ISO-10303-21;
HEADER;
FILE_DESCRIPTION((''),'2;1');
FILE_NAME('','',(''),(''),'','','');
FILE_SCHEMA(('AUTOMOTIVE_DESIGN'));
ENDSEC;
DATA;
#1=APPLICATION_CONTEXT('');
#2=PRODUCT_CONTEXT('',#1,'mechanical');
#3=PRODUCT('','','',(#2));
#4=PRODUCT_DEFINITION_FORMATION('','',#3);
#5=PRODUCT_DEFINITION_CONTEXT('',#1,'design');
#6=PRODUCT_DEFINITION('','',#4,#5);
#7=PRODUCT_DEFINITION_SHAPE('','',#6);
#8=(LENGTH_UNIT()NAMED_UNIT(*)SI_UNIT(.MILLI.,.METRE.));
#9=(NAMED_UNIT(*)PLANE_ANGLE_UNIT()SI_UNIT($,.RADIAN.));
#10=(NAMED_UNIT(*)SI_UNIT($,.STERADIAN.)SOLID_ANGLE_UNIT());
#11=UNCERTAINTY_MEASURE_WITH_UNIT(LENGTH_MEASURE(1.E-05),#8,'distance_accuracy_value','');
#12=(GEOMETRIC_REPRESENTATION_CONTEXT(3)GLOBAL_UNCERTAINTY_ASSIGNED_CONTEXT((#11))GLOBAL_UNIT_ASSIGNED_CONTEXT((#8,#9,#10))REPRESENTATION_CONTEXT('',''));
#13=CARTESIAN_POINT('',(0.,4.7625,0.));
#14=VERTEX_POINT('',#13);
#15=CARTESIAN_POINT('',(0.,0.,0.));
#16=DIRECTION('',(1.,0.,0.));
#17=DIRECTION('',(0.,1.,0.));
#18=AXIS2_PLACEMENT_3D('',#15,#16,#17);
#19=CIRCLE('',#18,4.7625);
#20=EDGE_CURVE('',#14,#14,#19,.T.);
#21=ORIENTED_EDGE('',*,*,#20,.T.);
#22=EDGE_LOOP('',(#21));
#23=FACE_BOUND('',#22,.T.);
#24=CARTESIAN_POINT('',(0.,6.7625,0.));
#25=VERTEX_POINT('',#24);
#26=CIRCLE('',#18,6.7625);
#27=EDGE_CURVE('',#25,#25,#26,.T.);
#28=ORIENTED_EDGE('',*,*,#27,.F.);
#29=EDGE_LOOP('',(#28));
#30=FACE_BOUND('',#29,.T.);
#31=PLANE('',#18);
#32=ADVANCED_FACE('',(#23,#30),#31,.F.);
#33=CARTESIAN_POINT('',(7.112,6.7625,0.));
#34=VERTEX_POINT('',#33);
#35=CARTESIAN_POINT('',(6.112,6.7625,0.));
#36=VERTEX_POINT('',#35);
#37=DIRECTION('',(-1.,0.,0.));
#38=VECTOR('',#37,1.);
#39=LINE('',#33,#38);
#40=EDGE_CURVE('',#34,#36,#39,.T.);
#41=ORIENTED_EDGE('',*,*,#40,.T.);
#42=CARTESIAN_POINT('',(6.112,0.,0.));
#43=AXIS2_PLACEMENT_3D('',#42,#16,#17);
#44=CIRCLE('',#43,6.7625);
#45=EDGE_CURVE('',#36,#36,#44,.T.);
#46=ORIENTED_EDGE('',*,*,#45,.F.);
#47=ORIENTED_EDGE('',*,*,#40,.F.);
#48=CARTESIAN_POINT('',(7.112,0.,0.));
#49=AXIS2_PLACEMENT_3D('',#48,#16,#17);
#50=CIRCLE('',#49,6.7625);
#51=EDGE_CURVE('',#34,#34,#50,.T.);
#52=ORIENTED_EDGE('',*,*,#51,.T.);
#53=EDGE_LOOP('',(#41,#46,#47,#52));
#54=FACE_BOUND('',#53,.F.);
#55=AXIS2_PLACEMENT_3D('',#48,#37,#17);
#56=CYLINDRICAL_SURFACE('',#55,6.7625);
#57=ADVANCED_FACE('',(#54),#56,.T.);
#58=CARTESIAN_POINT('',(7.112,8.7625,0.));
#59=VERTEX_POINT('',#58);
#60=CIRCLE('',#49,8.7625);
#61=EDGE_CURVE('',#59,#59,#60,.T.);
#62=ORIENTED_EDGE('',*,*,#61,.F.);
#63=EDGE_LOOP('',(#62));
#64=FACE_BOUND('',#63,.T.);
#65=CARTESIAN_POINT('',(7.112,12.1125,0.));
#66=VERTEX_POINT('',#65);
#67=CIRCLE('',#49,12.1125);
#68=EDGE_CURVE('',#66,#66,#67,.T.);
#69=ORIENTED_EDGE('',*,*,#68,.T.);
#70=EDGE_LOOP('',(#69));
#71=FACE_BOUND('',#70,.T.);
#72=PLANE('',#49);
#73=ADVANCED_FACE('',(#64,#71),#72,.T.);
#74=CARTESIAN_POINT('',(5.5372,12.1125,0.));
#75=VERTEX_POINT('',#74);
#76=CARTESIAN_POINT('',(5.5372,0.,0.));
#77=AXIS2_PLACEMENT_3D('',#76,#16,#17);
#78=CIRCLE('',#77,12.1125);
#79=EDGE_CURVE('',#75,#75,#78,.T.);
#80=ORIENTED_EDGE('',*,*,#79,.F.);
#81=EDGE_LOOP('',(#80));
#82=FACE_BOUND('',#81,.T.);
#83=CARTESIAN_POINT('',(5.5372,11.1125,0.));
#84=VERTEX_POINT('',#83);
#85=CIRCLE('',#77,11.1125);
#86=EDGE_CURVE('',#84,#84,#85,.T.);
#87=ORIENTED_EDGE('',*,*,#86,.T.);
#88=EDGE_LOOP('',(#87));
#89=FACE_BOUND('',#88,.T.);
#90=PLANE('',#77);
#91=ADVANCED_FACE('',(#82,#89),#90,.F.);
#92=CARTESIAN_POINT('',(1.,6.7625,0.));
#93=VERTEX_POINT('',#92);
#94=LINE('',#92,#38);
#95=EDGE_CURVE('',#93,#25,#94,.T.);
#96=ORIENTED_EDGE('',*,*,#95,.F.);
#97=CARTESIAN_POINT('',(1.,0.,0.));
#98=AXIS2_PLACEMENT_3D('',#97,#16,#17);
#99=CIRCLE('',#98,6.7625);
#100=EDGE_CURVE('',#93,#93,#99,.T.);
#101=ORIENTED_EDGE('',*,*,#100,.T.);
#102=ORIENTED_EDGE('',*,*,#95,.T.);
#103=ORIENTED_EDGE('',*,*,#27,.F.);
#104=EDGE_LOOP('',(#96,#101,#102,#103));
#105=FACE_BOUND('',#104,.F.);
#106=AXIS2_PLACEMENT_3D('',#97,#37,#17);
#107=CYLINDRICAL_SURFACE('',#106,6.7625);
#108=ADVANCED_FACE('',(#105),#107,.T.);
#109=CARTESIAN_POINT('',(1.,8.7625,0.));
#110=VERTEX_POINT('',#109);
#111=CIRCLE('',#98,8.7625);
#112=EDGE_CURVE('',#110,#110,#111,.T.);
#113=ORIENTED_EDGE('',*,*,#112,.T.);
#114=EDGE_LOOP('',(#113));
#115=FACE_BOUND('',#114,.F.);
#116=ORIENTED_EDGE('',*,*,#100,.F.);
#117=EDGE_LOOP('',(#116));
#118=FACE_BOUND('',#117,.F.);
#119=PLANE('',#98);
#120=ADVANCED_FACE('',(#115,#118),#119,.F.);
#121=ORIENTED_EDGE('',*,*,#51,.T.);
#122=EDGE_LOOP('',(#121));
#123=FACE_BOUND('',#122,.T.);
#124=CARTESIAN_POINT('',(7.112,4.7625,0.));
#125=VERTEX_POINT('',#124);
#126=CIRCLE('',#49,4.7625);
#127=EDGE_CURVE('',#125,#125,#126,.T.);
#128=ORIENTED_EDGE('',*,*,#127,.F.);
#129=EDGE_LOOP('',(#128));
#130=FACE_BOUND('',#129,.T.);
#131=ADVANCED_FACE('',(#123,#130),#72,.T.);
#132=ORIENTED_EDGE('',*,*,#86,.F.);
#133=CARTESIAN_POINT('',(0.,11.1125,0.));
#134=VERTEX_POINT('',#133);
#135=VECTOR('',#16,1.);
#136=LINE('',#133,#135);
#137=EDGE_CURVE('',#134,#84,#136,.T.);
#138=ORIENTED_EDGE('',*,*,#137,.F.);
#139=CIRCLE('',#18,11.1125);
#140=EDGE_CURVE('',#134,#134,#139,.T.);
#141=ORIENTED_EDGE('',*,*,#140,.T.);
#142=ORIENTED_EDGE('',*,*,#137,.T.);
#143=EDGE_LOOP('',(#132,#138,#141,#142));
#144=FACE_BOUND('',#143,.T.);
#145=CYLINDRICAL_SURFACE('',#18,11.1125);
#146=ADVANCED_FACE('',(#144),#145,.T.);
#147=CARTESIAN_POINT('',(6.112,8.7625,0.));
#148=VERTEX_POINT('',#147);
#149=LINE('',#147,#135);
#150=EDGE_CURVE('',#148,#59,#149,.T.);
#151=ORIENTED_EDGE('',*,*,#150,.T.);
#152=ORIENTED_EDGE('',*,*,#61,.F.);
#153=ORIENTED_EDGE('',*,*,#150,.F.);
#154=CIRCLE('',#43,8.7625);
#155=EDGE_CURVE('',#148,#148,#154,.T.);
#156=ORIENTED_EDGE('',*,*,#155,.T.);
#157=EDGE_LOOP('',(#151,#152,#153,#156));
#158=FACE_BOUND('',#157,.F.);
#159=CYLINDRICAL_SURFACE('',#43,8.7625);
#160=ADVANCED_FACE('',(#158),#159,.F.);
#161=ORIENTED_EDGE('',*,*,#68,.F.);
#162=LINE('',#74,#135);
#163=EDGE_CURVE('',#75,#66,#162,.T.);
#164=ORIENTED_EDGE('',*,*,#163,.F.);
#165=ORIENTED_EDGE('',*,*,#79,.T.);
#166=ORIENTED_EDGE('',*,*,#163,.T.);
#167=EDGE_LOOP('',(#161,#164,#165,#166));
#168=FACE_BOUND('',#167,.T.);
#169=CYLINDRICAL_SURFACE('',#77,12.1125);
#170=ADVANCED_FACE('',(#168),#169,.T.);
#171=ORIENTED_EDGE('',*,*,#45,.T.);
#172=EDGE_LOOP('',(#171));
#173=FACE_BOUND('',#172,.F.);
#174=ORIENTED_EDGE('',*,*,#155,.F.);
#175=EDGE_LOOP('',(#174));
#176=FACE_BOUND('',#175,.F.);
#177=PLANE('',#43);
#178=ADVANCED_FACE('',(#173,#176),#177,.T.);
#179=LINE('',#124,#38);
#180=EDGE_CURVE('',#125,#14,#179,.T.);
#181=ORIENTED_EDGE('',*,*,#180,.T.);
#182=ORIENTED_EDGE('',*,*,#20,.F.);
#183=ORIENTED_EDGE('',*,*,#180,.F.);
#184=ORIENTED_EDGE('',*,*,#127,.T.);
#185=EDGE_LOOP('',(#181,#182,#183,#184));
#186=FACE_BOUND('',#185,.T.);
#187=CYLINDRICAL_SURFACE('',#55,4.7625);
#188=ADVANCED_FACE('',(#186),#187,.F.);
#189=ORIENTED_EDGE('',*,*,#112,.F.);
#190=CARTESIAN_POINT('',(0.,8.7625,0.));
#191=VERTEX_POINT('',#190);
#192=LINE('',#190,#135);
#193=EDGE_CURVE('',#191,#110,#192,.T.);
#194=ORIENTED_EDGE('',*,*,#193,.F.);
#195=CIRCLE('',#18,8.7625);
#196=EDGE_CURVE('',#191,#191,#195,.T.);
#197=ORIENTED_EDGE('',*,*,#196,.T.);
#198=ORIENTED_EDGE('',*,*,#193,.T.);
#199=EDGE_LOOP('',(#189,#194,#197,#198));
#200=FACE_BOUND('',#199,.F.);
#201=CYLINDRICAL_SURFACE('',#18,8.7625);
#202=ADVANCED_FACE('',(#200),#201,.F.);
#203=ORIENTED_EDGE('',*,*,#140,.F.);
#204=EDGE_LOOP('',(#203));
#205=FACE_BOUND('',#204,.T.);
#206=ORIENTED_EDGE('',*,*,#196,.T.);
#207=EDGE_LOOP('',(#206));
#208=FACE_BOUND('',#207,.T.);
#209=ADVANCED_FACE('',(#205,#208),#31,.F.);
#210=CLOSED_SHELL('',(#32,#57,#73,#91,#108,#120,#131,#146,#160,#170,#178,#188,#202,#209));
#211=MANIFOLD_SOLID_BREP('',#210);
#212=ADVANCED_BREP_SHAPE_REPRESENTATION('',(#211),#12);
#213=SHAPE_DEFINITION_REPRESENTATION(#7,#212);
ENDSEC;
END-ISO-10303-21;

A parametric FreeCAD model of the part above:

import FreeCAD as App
import Part
import Sketcher

V = App.Vector
Q = App.Units.Quantity

doc = App.newDocument("Part")
body = doc.addObject("PartDesign::Body", "Body")

sketch1 = body.newObject("Sketcher::SketchObject", "Sketch")
sketch1.AttachmentSupport = (doc.getObject("XY_Plane"), [""])
sketch1.MapMode = "FlatFace"
sketch1.addGeometry([
    Part.LineSegment(V(5.5, 11.1, 0), V(0, 11.1, 0)),
    Part.LineSegment(V(0, 11.1, 0), V(0, 8.8, 0)),
    Part.LineSegment(V(0, 8.8, 0), V(1, 8.8, 0)),
    Part.LineSegment(V(1, 8.8, 0), V(1, 6.8, 0)),
    Part.LineSegment(V(1, 6.8, 0), V(0, 6.8, 0)),
    Part.LineSegment(V(0, 6.8, 0), V(0, 4.8, 0)),
    Part.LineSegment(V(0, 4.8, 0), V(7.1, 4.8, 0)),
    Part.LineSegment(V(7.1, 4.8, 0), V(7.1, 6.8, 0)),
    Part.LineSegment(V(7.1, 6.8, 0), V(6.1, 6.8, 0)),
    Part.LineSegment(V(6.1, 6.8, 0), V(6.1, 8.8, 0)),
    Part.LineSegment(V(6.1, 8.8, 0), V(7.1, 8.8, 0)),
    Part.LineSegment(V(7.1, 8.8, 0), V(7.1, 12.1, 0)),
    Part.LineSegment(V(7.1, 12.1, 0), V(5.5, 12.1, 0)),
    Part.LineSegment(V(5.5, 12.1, 0), V(5.5, 11.1, 0)),
], False)
sketch1.addConstraint([
    Sketcher.Constraint("Coincident", 0, 2, 1, 1),
    Sketcher.Constraint("Coincident", 1, 2, 2, 1),
    Sketcher.Constraint("Coincident", 2, 2, 3, 1),
    Sketcher.Constraint("Coincident", 3, 2, 4, 1),
    Sketcher.Constraint("Coincident", 4, 2, 5, 1),
    Sketcher.Constraint("Coincident", 5, 2, 6, 1),
    Sketcher.Constraint("Coincident", 6, 2, 7, 1),
    Sketcher.Constraint("Coincident", 7, 2, 8, 1),
    Sketcher.Constraint("Coincident", 8, 2, 9, 1),
    Sketcher.Constraint("Coincident", 9, 2, 10, 1),
    Sketcher.Constraint("Coincident", 10, 2, 11, 1),
    Sketcher.Constraint("Coincident", 11, 2, 12, 1),
    Sketcher.Constraint("Coincident", 12, 2, 13, 1),
    Sketcher.Constraint("Coincident", 13, 2, 0, 1),
    Sketcher.Constraint("Horizontal", 0),
    Sketcher.Constraint("Vertical", 1),
    Sketcher.Constraint("Horizontal", 2),
    Sketcher.Constraint("Vertical", 3),
    Sketcher.Constraint("Horizontal", 4),
    Sketcher.Constraint("Vertical", 5),
    Sketcher.Constraint("Horizontal", 6),
    Sketcher.Constraint("Vertical", 7),
    Sketcher.Constraint("Horizontal", 8),
    Sketcher.Constraint("Vertical", 9),
    Sketcher.Constraint("Horizontal", 10),
    Sketcher.Constraint("Vertical", 11),
    Sketcher.Constraint("Horizontal", 12),
    Sketcher.Constraint("Vertical", 13),
    Sketcher.Constraint("PointOnObject", 0, 2, -2),
    Sketcher.Constraint("PointOnObject", 4, 2, -2),
    Sketcher.Constraint("Horizontal", 4, 2, 7, 2),
    Sketcher.Constraint("Horizontal", 2, 2, 9, 2),
    Sketcher.Constraint("Vertical", 7, 2, 10, 2),
    Sketcher.Constraint("Equal", 4, 8),
    Sketcher.Constraint("Equal", 3, 5),
    Sketcher.Constraint("Equal", 10, 13),
    Sketcher.Constraint("DistanceX", 6, 1, 6, 2, Q("0.28 in")),
    Sketcher.Constraint("DistanceX", 12, 2, 12, 1, Q("0.062 in")),
    Sketcher.Constraint("DistanceX", 2, 1, 2, 2, 1.0),
    Sketcher.Constraint("DistanceY", 3, 2, 3, 1, 2.0),
    Sketcher.Constraint("DistanceY", 5, 2, 0, 2, Q("0.25 in")),
    Sketcher.Constraint("DistanceY", -1, 1, 0, 2, Q("0.4375 in")),
])
revolution = body.newObject("PartDesign::Revolution", "Revolution")
revolution.Profile = sketch1
revolution.ReferenceAxis = (sketch1, ["H_Axis"])
revolution.Angle = 360

doc.recompute()
